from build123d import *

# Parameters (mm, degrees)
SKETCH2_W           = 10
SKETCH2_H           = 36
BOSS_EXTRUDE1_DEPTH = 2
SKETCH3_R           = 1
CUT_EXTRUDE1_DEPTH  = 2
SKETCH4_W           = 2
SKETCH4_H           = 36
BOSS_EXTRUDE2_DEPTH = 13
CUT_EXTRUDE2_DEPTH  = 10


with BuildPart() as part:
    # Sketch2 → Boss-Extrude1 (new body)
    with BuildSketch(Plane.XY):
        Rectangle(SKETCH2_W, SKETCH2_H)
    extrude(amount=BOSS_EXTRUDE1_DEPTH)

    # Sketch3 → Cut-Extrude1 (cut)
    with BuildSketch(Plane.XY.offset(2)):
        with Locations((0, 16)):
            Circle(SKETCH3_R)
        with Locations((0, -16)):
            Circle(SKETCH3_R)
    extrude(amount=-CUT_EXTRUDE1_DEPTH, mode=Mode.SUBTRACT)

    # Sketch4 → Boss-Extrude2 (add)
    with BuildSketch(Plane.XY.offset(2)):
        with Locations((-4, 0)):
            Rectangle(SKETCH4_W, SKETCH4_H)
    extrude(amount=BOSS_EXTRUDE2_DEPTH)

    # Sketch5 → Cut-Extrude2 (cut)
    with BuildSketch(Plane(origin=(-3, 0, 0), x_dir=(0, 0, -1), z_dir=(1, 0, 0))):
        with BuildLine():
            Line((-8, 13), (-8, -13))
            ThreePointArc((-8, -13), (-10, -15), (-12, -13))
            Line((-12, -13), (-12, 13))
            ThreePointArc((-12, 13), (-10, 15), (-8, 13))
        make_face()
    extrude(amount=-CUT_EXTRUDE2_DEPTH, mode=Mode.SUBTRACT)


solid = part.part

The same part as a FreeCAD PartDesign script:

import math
import FreeCAD as App
import Part
import Sketcher

doc = App.newDocument("Part")
params = doc.addObject("Spreadsheet::Sheet", "Params")
for row, (alias, value) in enumerate([
    ("sketch1_width", "10 mm"),
    ("sketch1_height", "36 mm"),
    ("pad1_length", "2 mm"),
    ("sketch2_diameter", "2 mm"),
    ("pocket1_length", "2 mm"),
    ("sketch3_width", "2 mm"),
    ("sketch3_height", "36 mm"),
    ("pad2_length", "13 mm"),
    ("sketch4_radius", "2 mm"),
    ("sketch4_width", "26 mm"),
    ("pocket2_length", "10 mm"),
], start=1):
    params.set(f"A{row}", alias)
    params.set(f"B{row}", "=" + value)
    params.setAlias(f"B{row}", alias)

body = doc.addObject("PartDesign::Body", "Body")

# Sketch on XY plane
sketch1 = body.newObject("Sketcher::SketchObject", "Sketch")
sketch1.AttachmentSupport = (doc.getObject("XY_Plane"), [""])
sketch1.MapMode = "FlatFace"
sketch1.addGeometry(Part.LineSegment(App.Vector(-5, 18, 0), App.Vector(-5, -18, 0)), False)
sketch1.addGeometry(Part.LineSegment(App.Vector(-5, -18, 0), App.Vector(5, -18, 0)), False)
sketch1.addGeometry(Part.LineSegment(App.Vector(5, -18, 0), App.Vector(5, 18, 0)), False)
sketch1.addGeometry(Part.LineSegment(App.Vector(5, 18, 0), App.Vector(-5, 18, 0)), False)
sketch1.addConstraint(Sketcher.Constraint("Coincident", 0, 2, 1, 1))
sketch1.addConstraint(Sketcher.Constraint("Coincident", 1, 2, 2, 1))
sketch1.addConstraint(Sketcher.Constraint("Coincident", 2, 2, 3, 1))
sketch1.addConstraint(Sketcher.Constraint("Coincident", 3, 2, 0, 1))
sketch1.addConstraint(Sketcher.Constraint("Vertical", 0))
sketch1.addConstraint(Sketcher.Constraint("Horizontal", 1))
sketch1.addConstraint(Sketcher.Constraint("Vertical", 2))
sketch1.addConstraint(Sketcher.Constraint("Horizontal", 3))
sketch1.addConstraint(Sketcher.Constraint("Symmetric", 0, 2, 2, 2, -1, 1))
sketch1.addConstraint(Sketcher.Constraint("DistanceX", 1, 1, 1, 2, 10.0))
sketch1.addConstraint(Sketcher.Constraint("DistanceY", 0, 2, 0, 1, 36.0))
sketch1.setExpression("Constraints[9]", "Params.sketch1_width")
sketch1.setExpression("Constraints[10]", "Params.sketch1_height")
pad1 = body.newObject("PartDesign::Pad", "Pad")
pad1.Profile = sketch1
pad1.setExpression("Length", "Params.pad1_length")

# Sketch on XY plane
sketch2 = body.newObject("Sketcher::SketchObject", "Sketch001")
sketch2.AttachmentSupport = (doc.getObject("XY_Plane"), [""])
sketch2.MapMode = "FlatFace"
sketch2.AttachmentOffset = App.Placement(App.Vector(0, 0, 2), App.Rotation())
sketch2.addGeometry(Part.Circle(App.Vector(0, 16, 0), App.Vector(0, 0, 1), 1), False)
sketch2.addGeometry(Part.Circle(App.Vector(0, -16, 0), App.Vector(0, 0, 1), 1), False)
sketch2.addConstraint(Sketcher.Constraint("Equal", 0, 1))
sketch2.addConstraint(Sketcher.Constraint("Symmetric", 0, 3, 1, 3, -1, 1))
sketch2.addConstraint(Sketcher.Constraint("PointOnObject", 0, 3, -2))
sketch2.addConstraint(Sketcher.Constraint("Diameter", 0, 2.0))
sketch2.addConstraint(Sketcher.Constraint("DistanceY", -1, 1, 0, 3, 16.0))
sketch2.setExpression("Constraints[3]", "Params.sketch2_diameter")
pocket1 = body.newObject("PartDesign::Pocket", "Pocket")
pocket1.Profile = sketch2
pocket1.setExpression("Length", "Params.pocket1_length")

# Sketch on XY plane
sketch3 = body.newObject("Sketcher::SketchObject", "Sketch002")
sketch3.AttachmentSupport = (doc.getObject("XY_Plane"), [""])
sketch3.MapMode = "FlatFace"
sketch3.AttachmentOffset = App.Placement(App.Vector(0, 0, 2), App.Rotation())
sketch3.addGeometry(Part.LineSegment(App.Vector(-5, 18, 0), App.Vector(-5, -18, 0)), False)
sketch3.addGeometry(Part.LineSegment(App.Vector(-5, -18, 0), App.Vector(-3, -18, 0)), False)
sketch3.addGeometry(Part.LineSegment(App.Vector(-3, -18, 0), App.Vector(-3, 18, 0)), False)
sketch3.addGeometry(Part.LineSegment(App.Vector(-3, 18, 0), App.Vector(-5, 18, 0)), False)
sketch3.addConstraint(Sketcher.Constraint("Coincident", 0, 2, 1, 1))
sketch3.addConstraint(Sketcher.Constraint("Coincident", 1, 2, 2, 1))
sketch3.addConstraint(Sketcher.Constraint("Coincident", 2, 2, 3, 1))
sketch3.addConstraint(Sketcher.Constraint("Coincident", 3, 2, 0, 1))
sketch3.addConstraint(Sketcher.Constraint("Vertical", 0))
sketch3.addConstraint(Sketcher.Constraint("Horizontal", 1))
sketch3.addConstraint(Sketcher.Constraint("Vertical", 2))
sketch3.addConstraint(Sketcher.Constraint("Horizontal", 3))
sketch3.addConstraint(Sketcher.Constraint("DistanceX", 1, 1, 1, 2, 2.0))
sketch3.addConstraint(Sketcher.Constraint("DistanceY", 0, 2, 0, 1, 36.0))
sketch3.addConstraint(Sketcher.Constraint("DistanceX", 0, 2, -1, 1, 5.0))
sketch3.addConstraint(Sketcher.Constraint("DistanceY", 0, 2, -1, 1, 18.0))
sketch3.setExpression("Constraints[8]", "Params.sketch3_width")
sketch3.setExpression("Constraints[9]", "Params.sketch3_height")
pad2 = body.newObject("PartDesign::Pad", "Pad001")
pad2.Profile = sketch3
pad2.setExpression("Length", "Params.pad2_length")

# Sketch on YZ plane
sketch4 = body.newObject("Sketcher::SketchObject", "Sketch003")
sketch4.AttachmentSupport = (doc.getObject("YZ_Plane"), [""])
sketch4.MapMode = "FlatFace"
sketch4.AttachmentOffset = App.Placement(App.Vector(0, 0, -3), App.Rotation())
sketch4.addGeometry(Part.LineSegment(App.Vector(-13, 8, 0), App.Vector(13, 8, 0)), False)
sketch4.addGeometry(Part.ArcOfCircle(Part.Circle(App.Vector(13, 10, 0), App.Vector(0, 0, 1), 2), math.radians(-90), math.radians(90)), False)
sketch4.addGeometry(Part.LineSegment(App.Vector(13, 12, 0), App.Vector(-13, 12, 0)), False)
sketch4.addGeometry(Part.ArcOfCircle(Part.Circle(App.Vector(-13, 10, 0), App.Vector(0, 0, 1), 2), math.radians(90), math.radians(270)), False)
sketch4.addConstraint(Sketcher.Constraint("Tangent", 0, 2, 1, 1))
sketch4.addConstraint(Sketcher.Constraint("Tangent", 1, 2, 2, 1))
sketch4.addConstraint(Sketcher.Constraint("Tangent", 2, 2, 3, 1))
sketch4.addConstraint(Sketcher.Constraint("Tangent", 3, 2, 0, 1))
sketch4.addConstraint(Sketcher.Constraint("Horizontal", 0))
sketch4.addConstraint(Sketcher.Constraint("Horizontal", 2))
sketch4.addConstraint(Sketcher.Constraint("Radius", 1, 2.0))
sketch4.addConstraint(Sketcher.Constraint("DistanceX", 0, 1, 0, 2, 26.0))
sketch4.addConstraint(Sketcher.Constraint("DistanceX", -1, 1, 1, 3, 13.0))
sketch4.addConstraint(Sketcher.Constraint("DistanceY", -1, 1, 1, 3, 10.0))
sketch4.setExpression("Constraints[6]", "Params.sketch4_radius")
sketch4.setExpression("Constraints[7]", "Params.sketch4_width")
pocket2 = body.newObject("PartDesign::Pocket", "Pocket001")
pocket2.Profile = sketch4
pocket2.setExpression("Length", "Params.pocket2_length")

doc.recompute()
